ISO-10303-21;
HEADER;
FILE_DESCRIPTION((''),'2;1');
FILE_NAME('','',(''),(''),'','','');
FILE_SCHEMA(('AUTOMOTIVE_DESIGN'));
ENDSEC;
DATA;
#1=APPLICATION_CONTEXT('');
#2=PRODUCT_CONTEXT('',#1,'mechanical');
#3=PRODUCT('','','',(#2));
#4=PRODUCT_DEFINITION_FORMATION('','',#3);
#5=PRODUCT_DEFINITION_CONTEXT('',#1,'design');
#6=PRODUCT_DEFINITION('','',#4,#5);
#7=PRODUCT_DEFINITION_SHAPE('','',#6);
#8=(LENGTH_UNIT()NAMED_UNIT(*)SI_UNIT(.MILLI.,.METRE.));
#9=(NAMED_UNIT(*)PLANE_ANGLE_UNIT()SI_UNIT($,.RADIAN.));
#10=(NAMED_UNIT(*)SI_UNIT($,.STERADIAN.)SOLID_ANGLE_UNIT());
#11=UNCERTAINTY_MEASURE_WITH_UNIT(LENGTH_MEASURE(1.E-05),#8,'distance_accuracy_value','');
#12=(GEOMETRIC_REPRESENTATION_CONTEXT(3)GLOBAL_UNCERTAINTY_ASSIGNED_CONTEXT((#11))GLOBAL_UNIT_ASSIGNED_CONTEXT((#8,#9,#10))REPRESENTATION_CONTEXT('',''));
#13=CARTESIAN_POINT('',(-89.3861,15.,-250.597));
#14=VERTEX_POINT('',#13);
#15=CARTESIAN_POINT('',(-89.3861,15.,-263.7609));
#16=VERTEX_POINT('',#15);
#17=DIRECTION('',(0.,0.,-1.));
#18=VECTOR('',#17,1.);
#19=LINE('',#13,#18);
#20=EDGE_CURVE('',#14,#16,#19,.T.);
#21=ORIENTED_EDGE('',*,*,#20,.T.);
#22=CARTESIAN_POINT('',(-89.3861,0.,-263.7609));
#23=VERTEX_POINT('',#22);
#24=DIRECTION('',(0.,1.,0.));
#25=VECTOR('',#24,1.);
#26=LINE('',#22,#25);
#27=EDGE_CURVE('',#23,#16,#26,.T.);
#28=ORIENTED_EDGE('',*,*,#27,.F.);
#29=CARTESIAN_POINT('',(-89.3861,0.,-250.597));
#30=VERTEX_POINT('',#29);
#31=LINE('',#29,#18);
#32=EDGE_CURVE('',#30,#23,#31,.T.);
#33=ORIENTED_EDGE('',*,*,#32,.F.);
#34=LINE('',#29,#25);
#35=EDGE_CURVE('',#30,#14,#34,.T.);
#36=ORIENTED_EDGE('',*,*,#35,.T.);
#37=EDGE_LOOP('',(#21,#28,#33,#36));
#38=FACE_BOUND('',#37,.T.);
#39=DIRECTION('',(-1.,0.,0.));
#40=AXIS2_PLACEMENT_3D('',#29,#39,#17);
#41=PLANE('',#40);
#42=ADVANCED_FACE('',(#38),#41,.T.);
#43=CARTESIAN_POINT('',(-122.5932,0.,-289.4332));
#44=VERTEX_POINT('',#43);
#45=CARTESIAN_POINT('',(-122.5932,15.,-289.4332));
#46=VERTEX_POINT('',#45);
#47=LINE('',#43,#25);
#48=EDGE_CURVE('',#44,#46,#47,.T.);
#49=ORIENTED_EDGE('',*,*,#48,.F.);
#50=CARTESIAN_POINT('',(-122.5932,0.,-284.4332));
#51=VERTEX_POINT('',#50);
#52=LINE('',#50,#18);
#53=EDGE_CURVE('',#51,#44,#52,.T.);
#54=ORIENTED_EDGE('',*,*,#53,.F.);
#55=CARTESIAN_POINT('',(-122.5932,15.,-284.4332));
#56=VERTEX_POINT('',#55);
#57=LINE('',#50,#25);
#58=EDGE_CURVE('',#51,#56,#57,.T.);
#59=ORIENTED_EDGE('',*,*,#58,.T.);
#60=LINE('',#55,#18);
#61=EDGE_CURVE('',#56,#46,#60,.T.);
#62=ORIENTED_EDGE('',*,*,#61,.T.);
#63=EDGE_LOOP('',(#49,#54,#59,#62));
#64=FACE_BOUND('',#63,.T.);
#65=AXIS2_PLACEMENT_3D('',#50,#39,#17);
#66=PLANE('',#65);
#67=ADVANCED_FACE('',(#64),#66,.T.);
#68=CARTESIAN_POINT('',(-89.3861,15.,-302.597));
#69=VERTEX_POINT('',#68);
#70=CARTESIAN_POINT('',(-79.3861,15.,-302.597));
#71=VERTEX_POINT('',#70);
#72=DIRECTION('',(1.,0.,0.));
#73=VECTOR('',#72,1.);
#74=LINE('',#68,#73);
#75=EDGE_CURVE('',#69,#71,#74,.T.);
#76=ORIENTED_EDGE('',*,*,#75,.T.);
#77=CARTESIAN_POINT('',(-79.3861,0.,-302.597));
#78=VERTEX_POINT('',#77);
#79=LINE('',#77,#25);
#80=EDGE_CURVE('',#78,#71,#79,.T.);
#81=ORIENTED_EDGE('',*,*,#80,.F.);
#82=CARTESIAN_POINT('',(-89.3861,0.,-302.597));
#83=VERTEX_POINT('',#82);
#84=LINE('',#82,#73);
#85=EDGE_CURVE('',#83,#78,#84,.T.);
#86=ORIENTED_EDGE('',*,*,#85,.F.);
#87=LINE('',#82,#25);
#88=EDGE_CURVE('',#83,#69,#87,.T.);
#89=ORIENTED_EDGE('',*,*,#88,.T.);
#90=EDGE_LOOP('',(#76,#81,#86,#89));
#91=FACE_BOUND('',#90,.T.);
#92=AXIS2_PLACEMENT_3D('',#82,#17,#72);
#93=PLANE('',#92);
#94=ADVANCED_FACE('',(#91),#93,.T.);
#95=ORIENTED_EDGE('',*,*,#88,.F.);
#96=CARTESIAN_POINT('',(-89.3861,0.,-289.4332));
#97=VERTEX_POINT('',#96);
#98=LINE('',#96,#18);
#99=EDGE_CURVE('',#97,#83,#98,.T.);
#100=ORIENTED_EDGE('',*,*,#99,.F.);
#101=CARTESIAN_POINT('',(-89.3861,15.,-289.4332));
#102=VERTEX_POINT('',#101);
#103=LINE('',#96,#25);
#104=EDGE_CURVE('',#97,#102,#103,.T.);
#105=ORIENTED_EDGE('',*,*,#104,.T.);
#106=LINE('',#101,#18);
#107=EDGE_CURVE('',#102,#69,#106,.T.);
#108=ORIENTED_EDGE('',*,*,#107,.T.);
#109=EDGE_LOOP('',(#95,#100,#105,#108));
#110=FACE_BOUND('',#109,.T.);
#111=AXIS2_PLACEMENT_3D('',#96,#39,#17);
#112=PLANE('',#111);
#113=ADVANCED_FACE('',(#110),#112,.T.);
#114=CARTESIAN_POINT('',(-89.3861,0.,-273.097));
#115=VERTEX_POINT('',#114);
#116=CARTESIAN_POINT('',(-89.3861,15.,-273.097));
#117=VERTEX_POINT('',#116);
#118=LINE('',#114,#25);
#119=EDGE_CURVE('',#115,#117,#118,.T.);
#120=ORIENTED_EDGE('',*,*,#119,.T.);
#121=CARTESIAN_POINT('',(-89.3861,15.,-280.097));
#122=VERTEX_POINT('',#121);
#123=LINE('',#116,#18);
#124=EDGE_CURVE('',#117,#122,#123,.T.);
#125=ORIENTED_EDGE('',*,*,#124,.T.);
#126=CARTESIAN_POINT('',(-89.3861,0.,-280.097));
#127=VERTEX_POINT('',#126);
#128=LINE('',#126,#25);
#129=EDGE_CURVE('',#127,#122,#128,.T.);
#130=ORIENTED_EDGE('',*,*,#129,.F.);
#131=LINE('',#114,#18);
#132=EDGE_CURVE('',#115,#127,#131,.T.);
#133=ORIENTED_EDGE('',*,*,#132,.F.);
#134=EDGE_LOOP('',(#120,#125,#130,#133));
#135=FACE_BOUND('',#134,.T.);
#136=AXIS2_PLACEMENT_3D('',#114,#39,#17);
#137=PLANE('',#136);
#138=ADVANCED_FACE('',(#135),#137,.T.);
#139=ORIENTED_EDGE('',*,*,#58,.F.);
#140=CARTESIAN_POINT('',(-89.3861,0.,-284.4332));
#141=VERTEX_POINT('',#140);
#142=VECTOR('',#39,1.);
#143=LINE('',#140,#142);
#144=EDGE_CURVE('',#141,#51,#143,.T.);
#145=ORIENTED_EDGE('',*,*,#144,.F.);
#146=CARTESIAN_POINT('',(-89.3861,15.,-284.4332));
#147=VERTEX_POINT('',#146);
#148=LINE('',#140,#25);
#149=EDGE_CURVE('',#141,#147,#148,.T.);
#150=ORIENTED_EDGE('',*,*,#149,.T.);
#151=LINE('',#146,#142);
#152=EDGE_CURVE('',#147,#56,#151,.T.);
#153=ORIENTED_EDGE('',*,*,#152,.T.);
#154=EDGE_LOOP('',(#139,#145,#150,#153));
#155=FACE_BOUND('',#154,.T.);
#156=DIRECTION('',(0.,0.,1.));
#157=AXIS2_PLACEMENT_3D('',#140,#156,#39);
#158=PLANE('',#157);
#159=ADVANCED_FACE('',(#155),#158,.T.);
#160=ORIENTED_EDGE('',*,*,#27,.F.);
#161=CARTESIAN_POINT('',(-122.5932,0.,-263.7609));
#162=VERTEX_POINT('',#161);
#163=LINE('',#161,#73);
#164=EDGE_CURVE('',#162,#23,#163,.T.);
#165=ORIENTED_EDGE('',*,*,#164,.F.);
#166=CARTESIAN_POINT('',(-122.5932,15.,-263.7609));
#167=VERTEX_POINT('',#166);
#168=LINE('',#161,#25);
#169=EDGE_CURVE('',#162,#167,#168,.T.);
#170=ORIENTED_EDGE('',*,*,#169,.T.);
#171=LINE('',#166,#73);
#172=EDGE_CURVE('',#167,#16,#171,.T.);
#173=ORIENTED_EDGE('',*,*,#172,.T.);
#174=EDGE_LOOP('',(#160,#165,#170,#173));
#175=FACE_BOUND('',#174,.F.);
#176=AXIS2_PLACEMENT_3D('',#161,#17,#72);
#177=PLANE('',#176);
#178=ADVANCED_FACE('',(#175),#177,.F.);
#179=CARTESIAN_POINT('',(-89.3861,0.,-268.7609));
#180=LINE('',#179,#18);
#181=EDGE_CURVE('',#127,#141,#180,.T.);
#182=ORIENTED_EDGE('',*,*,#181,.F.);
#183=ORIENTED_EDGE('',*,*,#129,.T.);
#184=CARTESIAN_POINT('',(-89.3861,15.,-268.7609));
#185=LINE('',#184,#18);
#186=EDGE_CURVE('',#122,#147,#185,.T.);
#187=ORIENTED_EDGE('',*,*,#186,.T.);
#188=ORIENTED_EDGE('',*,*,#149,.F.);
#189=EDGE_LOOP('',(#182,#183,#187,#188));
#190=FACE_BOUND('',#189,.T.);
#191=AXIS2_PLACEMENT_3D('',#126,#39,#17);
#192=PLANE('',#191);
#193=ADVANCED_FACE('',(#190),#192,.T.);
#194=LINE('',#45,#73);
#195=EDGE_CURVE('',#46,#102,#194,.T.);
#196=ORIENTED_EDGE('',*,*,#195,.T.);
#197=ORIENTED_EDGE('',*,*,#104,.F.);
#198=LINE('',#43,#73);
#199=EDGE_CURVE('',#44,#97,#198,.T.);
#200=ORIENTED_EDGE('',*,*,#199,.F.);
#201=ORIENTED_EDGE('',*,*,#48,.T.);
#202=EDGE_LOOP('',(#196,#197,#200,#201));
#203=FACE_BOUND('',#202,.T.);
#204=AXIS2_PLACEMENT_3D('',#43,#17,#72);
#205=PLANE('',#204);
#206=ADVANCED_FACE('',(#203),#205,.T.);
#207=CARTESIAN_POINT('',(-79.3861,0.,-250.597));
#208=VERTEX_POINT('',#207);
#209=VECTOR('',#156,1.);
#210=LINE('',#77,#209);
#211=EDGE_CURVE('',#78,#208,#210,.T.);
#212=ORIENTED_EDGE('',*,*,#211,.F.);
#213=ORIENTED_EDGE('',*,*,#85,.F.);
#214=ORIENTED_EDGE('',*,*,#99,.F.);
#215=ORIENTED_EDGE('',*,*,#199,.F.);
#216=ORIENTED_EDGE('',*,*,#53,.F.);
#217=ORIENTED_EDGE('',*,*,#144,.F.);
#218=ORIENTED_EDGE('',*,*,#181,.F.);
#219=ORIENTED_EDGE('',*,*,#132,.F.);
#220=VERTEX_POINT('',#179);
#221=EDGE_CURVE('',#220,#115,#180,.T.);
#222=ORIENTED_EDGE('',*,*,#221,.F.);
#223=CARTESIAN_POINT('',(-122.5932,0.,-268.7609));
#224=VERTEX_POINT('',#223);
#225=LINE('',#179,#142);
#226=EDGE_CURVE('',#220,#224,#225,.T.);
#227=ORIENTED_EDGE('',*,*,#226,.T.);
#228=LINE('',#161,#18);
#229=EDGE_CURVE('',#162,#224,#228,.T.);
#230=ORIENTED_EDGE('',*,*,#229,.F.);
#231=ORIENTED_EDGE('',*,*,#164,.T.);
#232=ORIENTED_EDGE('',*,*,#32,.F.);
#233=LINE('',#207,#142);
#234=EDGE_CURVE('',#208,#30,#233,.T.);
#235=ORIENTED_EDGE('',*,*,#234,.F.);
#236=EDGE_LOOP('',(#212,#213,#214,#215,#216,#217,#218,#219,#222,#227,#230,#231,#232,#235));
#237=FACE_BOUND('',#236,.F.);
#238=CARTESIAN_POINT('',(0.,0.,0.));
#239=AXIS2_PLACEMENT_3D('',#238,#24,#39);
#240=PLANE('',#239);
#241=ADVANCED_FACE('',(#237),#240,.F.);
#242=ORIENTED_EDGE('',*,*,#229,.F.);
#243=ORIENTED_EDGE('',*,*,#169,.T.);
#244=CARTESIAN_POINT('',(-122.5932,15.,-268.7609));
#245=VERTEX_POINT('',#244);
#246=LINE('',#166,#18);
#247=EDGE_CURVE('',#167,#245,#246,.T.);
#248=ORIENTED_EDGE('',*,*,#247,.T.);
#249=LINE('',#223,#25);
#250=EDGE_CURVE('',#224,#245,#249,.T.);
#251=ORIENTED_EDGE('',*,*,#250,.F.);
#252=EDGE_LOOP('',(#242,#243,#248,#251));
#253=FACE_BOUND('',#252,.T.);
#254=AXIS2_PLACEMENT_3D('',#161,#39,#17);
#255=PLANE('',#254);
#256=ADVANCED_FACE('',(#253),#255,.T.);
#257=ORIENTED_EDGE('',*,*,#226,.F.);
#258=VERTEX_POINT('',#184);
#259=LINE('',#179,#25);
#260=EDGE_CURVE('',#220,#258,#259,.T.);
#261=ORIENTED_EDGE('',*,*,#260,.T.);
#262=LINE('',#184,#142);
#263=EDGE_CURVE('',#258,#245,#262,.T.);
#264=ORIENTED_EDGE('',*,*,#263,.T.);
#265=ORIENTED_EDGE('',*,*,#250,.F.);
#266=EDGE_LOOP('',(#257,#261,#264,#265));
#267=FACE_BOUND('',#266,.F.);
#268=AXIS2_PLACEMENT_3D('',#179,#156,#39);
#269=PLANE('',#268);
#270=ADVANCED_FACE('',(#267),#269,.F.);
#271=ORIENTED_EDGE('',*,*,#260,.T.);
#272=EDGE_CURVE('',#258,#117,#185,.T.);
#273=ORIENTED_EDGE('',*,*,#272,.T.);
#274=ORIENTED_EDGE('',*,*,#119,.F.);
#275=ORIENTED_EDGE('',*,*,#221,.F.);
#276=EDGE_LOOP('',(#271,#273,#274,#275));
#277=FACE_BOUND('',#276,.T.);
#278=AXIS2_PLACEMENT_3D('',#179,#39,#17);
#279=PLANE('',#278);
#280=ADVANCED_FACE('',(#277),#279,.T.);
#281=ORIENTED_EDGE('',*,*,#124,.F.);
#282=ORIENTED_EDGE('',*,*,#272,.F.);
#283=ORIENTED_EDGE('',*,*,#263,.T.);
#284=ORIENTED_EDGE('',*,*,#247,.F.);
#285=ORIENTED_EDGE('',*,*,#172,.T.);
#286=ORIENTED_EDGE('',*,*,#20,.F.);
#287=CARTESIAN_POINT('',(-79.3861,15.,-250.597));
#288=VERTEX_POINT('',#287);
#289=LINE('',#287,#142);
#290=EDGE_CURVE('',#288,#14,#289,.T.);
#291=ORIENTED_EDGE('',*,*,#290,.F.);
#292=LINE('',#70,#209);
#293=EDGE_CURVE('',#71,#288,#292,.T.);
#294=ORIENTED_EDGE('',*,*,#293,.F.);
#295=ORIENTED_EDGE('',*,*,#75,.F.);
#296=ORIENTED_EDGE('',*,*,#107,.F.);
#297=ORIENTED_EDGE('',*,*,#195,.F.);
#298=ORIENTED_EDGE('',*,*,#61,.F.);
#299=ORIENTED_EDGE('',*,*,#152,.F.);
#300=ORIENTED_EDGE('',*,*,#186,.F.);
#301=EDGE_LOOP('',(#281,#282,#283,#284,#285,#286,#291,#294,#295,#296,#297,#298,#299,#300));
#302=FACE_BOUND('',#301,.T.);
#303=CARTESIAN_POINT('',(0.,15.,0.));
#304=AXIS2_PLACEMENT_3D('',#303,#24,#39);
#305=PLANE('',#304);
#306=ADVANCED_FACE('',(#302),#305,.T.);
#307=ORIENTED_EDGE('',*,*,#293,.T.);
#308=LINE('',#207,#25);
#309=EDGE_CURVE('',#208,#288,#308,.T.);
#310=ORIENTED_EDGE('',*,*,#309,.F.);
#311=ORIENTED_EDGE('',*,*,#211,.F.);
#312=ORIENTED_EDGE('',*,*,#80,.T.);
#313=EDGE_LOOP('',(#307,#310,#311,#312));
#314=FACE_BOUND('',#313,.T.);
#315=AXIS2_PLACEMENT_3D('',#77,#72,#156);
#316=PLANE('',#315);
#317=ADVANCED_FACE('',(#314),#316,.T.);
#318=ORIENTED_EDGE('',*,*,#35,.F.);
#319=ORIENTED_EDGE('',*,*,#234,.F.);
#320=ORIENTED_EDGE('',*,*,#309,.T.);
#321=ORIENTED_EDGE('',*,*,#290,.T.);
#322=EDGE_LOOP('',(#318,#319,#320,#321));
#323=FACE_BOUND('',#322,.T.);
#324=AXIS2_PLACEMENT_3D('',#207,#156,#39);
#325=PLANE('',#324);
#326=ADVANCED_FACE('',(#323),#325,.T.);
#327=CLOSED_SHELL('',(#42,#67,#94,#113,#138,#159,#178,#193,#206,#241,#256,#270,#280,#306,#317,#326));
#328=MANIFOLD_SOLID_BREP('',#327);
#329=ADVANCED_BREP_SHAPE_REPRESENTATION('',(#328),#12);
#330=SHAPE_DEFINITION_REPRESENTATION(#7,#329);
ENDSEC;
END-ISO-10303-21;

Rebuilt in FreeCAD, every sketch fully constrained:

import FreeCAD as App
import Part
import Sketcher

V = App.Vector


def add_polygon(sketch, points):
    """Adds a closed chain of lines whose ends are joined by coincident constraints."""
    first, n = sketch.GeometryCount, len(points)
    for a, b in zip(points, points[1:] + points[:1]):
        sketch.addGeometry(Part.LineSegment(App.Vector(*a, 0), App.Vector(*b, 0)), False)
    for i in range(n):
        sketch.addConstraint(Sketcher.Constraint("Coincident", first + i, 2, first + (i + 1) % n, 1))

doc = App.newDocument("Part")
body = doc.addObject("PartDesign::Body", "Body")

sketch1 = doc.addObject("Sketcher::SketchObject", "Sketch")
body.addObject(sketch1)
sketch1.AttachmentSupport = (doc.XZ_Plane, [""])
sketch1.MapMode = "FlatFace"
add_polygon(sketch1, [(-89, -284), (-89, -269), (-123, -269), (-123, -264), (-89, -264), (-89, -251), (-79, -251), (-79, -303), (-89, -303), (-89, -289), (-123, -289), (-123, -284)])
sketch1.addConstraint([
    Sketcher.Constraint("Vertical", 0),
    Sketcher.Constraint("Horizontal", 1),
    Sketcher.Constraint("Vertical", 2),
    Sketcher.Constraint("Horizontal", 3),
    Sketcher.Constraint("Vertical", 4),
    Sketcher.Constraint("Horizontal", 5),
    Sketcher.Constraint("Vertical", 6),
    Sketcher.Constraint("Horizontal", 7),
    Sketcher.Constraint("Vertical", 8),
    Sketcher.Constraint("Horizontal", 9),
    Sketcher.Constraint("Vertical", 10),
    Sketcher.Constraint("Horizontal", 11),
    Sketcher.Constraint("Vertical", 0, 2, 3, 2),
    Sketcher.Constraint("Vertical", 4, 2, 7, 2),
    Sketcher.Constraint("Vertical", 2, 2, 9, 2),
    Sketcher.Constraint("Equal", 4, 8),
    Sketcher.Constraint("Equal", 2, 10),
    Sketcher.Constraint("DistanceX", 5, 1, 5, 2, 10.0),
    Sketcher.Constraint("DistanceY", 2, 1, 2, 2, 5.0),
    Sketcher.Constraint("DistanceY", 6, 2, 6, 1, 52.0),
    Sketcher.Constraint("DistanceX", 1, 2, 1, 1, 33.207),
    Sketcher.Constraint("DistanceY", 4, 1, 4, 2, 13.164),
    Sketcher.Constraint("DistanceX", 0, 2, -1, 1, 89.386),
    Sketcher.Constraint("DistanceY", 0, 2, -1, 1, 268.761),
])
pad1 = doc.addObject("PartDesign::Pad", "Pad")
body.addObject(pad1)
pad1.Profile = sketch1
pad1.Length = 15
pad1.Reversed = True

doc.recompute()
